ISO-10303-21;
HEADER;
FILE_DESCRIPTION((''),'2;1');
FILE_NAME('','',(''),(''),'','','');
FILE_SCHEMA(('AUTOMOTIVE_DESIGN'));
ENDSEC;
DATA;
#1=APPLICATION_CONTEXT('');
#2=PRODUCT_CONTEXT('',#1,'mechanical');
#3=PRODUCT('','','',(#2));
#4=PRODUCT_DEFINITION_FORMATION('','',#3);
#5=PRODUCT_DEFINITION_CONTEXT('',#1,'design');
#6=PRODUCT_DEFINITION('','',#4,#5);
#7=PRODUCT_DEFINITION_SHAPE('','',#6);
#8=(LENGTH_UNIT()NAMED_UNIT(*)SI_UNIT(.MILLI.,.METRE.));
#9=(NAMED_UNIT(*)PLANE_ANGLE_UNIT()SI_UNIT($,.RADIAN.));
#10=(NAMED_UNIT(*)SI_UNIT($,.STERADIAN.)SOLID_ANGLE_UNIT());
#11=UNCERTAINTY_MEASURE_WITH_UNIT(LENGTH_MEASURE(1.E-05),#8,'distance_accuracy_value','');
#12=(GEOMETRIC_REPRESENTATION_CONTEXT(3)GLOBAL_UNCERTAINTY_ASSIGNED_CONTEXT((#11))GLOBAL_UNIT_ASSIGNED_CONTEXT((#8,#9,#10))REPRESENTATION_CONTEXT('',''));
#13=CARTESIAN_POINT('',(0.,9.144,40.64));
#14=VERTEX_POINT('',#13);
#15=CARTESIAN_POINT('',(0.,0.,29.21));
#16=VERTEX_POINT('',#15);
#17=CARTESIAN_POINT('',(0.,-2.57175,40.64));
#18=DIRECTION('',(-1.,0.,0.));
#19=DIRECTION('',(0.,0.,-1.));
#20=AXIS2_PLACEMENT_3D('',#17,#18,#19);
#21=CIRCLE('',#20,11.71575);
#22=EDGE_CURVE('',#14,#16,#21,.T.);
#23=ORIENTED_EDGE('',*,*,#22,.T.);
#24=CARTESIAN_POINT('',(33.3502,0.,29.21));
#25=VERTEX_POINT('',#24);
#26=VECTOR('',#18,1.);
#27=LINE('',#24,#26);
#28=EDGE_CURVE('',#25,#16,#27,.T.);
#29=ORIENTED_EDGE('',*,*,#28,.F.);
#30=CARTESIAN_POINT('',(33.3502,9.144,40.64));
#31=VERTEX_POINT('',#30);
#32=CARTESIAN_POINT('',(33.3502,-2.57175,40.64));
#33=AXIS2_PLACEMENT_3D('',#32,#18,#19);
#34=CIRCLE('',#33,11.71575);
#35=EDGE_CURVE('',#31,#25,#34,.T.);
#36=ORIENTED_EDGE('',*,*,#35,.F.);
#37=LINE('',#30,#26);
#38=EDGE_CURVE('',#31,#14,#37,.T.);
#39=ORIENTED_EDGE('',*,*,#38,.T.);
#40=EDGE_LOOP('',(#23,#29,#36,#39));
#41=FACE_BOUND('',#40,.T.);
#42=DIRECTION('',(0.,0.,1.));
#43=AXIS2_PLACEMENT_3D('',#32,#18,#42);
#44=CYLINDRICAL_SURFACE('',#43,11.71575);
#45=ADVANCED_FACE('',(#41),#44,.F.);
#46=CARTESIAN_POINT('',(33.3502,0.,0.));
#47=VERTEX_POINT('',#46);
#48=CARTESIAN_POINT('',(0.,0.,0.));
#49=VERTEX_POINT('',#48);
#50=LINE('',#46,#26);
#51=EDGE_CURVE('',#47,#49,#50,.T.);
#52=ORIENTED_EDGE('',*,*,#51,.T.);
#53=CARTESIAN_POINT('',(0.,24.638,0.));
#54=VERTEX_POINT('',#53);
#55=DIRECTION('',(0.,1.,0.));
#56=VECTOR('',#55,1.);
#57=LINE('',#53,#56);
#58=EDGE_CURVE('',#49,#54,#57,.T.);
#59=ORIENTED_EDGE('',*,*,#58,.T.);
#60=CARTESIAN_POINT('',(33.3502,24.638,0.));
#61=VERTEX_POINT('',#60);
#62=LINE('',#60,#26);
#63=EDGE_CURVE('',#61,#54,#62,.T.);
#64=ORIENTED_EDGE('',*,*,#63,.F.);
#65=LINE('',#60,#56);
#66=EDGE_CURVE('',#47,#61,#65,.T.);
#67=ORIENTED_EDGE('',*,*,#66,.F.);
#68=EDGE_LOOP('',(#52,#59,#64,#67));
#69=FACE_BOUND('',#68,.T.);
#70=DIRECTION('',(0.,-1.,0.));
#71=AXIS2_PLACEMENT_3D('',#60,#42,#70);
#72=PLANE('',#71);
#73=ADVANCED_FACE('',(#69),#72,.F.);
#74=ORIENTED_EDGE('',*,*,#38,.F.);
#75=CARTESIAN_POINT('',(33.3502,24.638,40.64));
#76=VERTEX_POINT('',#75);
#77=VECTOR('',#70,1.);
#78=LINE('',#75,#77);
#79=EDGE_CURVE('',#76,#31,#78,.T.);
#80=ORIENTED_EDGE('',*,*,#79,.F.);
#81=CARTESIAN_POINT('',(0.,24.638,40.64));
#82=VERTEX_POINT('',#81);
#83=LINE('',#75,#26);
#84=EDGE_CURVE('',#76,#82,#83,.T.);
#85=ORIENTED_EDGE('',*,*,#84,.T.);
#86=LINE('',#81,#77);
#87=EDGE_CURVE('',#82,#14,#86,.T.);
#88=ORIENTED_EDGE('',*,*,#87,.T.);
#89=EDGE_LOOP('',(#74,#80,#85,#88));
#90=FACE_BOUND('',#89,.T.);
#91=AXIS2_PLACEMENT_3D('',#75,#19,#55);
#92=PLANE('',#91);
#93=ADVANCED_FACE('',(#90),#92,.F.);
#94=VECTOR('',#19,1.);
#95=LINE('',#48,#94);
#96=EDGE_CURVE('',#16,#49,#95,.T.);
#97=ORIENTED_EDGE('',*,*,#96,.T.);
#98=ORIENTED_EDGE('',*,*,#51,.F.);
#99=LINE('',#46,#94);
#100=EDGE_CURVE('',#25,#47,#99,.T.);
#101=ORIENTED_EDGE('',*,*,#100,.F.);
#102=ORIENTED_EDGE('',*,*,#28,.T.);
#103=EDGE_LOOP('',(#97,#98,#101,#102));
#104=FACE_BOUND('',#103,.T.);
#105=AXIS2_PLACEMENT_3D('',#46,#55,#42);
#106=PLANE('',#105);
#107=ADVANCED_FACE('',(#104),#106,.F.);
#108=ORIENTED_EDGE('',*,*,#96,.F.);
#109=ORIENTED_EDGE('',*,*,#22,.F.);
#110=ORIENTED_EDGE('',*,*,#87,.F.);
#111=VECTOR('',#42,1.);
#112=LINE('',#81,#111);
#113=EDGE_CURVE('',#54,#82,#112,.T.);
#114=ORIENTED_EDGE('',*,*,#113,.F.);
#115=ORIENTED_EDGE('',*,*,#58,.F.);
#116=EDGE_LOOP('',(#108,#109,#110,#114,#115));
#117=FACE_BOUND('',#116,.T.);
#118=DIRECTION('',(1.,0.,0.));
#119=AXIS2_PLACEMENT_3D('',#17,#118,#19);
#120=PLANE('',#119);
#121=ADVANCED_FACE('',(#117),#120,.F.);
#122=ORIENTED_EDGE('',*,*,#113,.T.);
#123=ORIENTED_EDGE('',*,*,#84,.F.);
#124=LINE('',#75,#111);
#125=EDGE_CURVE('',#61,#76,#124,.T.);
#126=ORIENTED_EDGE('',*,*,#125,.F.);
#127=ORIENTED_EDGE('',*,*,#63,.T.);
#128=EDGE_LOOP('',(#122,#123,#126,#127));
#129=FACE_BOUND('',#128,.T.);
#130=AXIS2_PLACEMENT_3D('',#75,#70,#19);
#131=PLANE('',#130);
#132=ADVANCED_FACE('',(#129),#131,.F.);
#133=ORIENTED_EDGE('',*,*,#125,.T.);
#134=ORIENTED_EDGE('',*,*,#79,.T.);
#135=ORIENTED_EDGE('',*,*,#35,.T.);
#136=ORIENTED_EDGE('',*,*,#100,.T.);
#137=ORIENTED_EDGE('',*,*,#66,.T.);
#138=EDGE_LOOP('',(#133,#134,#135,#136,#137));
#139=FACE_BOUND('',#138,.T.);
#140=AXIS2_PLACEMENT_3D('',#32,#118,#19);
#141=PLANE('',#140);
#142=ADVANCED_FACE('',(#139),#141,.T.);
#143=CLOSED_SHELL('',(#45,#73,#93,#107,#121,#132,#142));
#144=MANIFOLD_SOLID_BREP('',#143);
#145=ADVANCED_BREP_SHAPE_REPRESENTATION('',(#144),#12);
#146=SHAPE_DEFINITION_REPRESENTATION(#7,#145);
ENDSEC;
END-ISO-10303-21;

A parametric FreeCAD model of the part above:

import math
import FreeCAD as App
import Part
import Sketcher

V = App.Vector
Q = App.Units.Quantity

doc = App.newDocument("Part")
body = doc.addObject("PartDesign::Body", "Body")

# Sketch on YZ plane
sketch1 = body.newObject("Sketcher::SketchObject", "Sketch")
sketch1.AttachmentSupport = (doc.getObject("YZ_Plane"), [""])
sketch1.MapMode = "FlatFace"
sketch1.addGeometry([
    Part.LineSegment(V(25, 0, 0), V(25, 41, 0)),  # 0
    Part.LineSegment(V(25, 41, 0), V(9, 41, 0)),  # 1
    Part.ArcOfCircle(Part.Circle(V(-3, 41, 0), V(0, 0, 1), 12), math.radians(-77), math.radians(0)),  # 2
    Part.LineSegment(V(0, 29, 0), V(0, 0, 0)),  # 3
    Part.LineSegment(V(0, 0, 0), V(25, 0, 0)),  # 4
], False)
sketch1.addConstraint([
    Sketcher.Constraint("Coincident", 0, 2, 1, 1),
    Sketcher.Constraint("Coincident", 1, 2, 2, 2),
    Sketcher.Constraint("Coincident", 2, 1, 3, 1),
    Sketcher.Constraint("Coincident", 3, 2, 4, 1),
    Sketcher.Constraint("Coincident", 4, 2, 0, 1),
    Sketcher.Constraint("Vertical", 0),
    Sketcher.Constraint("Horizontal", 1),
    Sketcher.Constraint("Vertical", 3),
    Sketcher.Constraint("Horizontal", 4),
    Sketcher.Constraint("Coincident", 3, 2, -1, 1),
    Sketcher.Constraint("Horizontal", 2, 3, 0, 2),
    Sketcher.Constraint("DistanceY", 0, 1, 0, 2, Q("1.6 in")),
    Sketcher.Constraint("DistanceX", 1, 2, 1, 1, Q("0.61 in")),
    Sketcher.Constraint("DistanceX", 4, 1, 4, 2, Q("0.97 in")),
    Sketcher.Constraint("DistanceY", 3, 2, 3, 1, Q("1.15 in")),
])
pad1 = body.newObject("PartDesign::Pad", "Pad")
pad1.Profile = sketch1
pad1.Length = Q("1.313 in")

doc.recompute()
